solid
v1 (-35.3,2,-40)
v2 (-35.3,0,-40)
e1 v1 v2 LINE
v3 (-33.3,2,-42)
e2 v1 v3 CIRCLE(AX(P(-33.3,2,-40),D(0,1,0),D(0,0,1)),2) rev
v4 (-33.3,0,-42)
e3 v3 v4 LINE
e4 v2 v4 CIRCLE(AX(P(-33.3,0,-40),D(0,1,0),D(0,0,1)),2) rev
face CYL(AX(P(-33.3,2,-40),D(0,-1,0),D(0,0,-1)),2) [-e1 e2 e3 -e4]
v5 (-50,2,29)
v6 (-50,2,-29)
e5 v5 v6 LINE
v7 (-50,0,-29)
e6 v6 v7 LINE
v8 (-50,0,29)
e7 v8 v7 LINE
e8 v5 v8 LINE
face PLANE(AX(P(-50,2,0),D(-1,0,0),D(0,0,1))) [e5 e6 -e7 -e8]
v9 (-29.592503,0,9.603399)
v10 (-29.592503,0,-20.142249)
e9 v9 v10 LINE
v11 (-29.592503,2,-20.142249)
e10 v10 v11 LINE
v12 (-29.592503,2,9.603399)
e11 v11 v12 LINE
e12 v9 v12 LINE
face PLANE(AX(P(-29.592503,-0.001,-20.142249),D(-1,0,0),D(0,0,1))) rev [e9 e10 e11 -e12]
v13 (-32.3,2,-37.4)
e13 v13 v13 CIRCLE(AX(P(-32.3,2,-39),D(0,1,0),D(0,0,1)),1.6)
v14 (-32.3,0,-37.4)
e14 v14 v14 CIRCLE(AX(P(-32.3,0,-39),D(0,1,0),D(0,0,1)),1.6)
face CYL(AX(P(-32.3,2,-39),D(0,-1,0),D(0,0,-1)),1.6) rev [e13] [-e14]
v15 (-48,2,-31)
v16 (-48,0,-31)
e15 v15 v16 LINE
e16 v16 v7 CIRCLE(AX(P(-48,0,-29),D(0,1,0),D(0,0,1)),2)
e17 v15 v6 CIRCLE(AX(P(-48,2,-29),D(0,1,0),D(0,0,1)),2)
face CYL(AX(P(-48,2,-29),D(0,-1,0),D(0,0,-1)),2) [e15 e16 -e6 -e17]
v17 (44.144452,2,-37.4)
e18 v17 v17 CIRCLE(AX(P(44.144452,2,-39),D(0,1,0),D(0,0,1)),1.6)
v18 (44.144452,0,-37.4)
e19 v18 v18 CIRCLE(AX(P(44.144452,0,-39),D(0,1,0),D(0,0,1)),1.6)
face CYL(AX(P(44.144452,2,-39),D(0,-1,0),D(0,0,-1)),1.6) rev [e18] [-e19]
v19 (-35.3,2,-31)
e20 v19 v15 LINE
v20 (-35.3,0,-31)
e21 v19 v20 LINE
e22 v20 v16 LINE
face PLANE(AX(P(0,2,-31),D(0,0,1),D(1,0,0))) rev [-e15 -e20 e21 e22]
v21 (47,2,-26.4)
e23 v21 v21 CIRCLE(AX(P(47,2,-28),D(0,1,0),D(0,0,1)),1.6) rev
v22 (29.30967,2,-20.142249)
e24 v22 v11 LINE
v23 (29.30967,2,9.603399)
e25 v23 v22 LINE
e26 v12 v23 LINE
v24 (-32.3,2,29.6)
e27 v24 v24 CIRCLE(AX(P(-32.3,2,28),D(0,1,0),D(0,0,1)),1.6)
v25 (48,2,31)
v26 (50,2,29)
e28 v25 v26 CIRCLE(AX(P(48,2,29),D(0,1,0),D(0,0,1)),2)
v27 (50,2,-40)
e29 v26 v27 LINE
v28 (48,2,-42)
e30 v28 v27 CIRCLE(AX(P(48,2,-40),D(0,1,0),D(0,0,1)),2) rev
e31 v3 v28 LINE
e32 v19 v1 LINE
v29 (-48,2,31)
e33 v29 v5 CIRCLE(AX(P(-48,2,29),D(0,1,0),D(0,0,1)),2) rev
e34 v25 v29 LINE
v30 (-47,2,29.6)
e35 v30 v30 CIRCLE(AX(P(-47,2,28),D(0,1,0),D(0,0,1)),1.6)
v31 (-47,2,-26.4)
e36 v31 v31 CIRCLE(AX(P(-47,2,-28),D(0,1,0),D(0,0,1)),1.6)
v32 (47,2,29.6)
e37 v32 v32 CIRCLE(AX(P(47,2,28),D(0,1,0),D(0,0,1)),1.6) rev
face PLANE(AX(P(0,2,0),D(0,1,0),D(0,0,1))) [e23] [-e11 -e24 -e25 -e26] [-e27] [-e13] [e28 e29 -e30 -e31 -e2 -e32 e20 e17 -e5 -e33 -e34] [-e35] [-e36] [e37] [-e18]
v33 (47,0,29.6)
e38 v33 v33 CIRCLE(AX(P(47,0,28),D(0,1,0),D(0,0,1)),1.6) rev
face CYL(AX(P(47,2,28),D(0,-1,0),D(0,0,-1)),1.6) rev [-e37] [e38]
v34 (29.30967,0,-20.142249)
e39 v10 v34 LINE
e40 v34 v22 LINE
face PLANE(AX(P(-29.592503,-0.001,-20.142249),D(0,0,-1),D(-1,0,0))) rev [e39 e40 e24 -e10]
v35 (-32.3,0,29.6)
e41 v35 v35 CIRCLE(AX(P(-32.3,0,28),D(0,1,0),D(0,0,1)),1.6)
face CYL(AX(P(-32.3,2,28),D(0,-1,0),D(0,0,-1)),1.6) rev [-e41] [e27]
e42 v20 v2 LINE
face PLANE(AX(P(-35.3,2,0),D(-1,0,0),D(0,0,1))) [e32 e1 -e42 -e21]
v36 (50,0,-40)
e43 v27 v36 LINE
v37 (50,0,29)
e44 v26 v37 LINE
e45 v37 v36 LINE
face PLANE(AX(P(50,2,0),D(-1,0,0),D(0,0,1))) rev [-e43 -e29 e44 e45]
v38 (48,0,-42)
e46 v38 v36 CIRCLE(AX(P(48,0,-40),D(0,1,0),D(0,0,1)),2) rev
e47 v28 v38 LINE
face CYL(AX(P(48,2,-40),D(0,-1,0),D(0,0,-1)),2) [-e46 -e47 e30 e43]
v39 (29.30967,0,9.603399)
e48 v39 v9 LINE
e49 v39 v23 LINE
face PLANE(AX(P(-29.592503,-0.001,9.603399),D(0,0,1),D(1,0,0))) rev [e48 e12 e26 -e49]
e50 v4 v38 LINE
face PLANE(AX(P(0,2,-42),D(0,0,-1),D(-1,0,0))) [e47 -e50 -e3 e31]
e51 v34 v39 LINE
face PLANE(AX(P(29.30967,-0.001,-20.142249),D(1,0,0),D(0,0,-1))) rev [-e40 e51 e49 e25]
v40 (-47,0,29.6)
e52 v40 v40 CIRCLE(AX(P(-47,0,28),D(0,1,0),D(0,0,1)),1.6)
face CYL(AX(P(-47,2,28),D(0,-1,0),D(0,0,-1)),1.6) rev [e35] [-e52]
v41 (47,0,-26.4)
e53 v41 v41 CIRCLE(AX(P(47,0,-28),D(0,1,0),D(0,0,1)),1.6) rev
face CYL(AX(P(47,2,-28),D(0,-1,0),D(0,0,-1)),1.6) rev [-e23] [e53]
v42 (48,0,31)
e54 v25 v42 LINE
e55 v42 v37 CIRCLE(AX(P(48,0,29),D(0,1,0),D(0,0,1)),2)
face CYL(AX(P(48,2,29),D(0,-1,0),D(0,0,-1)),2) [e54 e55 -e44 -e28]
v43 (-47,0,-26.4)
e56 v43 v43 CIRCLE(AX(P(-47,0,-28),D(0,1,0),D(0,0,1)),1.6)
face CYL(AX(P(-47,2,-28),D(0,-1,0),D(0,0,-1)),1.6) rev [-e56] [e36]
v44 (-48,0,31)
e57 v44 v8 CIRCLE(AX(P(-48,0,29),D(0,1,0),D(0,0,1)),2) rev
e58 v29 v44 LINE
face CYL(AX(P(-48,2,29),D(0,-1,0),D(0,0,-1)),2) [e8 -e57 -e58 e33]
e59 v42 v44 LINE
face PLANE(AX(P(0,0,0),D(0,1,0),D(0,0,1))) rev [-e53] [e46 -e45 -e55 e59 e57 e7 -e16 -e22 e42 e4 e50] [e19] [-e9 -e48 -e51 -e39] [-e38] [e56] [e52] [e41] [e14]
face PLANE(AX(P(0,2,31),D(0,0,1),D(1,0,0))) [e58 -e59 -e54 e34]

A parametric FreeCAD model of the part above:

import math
import FreeCAD as App
import Part
import Sketcher

doc = App.newDocument("Part")
body = doc.addObject("PartDesign::Body", "Body")

sketch1 = body.newObject("Sketcher::SketchObject", "Sketch")
sketch1.AttachmentSupport = (doc.getObject("XZ_Plane"), [""])
sketch1.MapMode = "FlatFace"
sketch1.addGeometry([
    Part.ArcOfCircle(Part.Circle(App.Vector(48, 29, 0), App.Vector(0, 0, 1), 2), math.radians(0), math.radians(90)),
    Part.LineSegment(App.Vector(50, 29, 0), App.Vector(50, -40, 0)),
    Part.ArcOfCircle(Part.Circle(App.Vector(48, -40, 0), App.Vector(0, 0, 1), 2), math.radians(-90), math.radians(0)),
    Part.LineSegment(App.Vector(48, -42, 0), App.Vector(-33.3, -42, 0)),
    Part.ArcOfCircle(Part.Circle(App.Vector(-33.3, -40, 0), App.Vector(0, 0, 1), 2), math.radians(-180), math.radians(-90)),
    Part.LineSegment(App.Vector(-35.3, -40, 0), App.Vector(-35.3, -31, 0)),
    Part.LineSegment(App.Vector(-35.3, -31, 0), App.Vector(-48, -31, 0)),
    Part.ArcOfCircle(Part.Circle(App.Vector(-48, -29, 0), App.Vector(0, 0, 1), 2), math.radians(-180), math.radians(-90)),
    Part.LineSegment(App.Vector(-50, -29, 0), App.Vector(-50, 29, 0)),
    Part.ArcOfCircle(Part.Circle(App.Vector(-48, 29, 0), App.Vector(0, 0, 1), 2), math.radians(90), math.radians(180)),
    Part.LineSegment(App.Vector(-48, 31, 0), App.Vector(48, 31, 0)),
    Part.Circle(App.Vector(-32.3, 28, 0), App.Vector(0, 0, 1), 1.6),
    Part.Circle(App.Vector(47, 28, 0), App.Vector(0, 0, 1), 1.6),
    Part.Circle(App.Vector(47, -28, 0), App.Vector(0, 0, 1), 1.6),
    Part.Circle(App.Vector(-47, -28, 0), App.Vector(0, 0, 1), 1.6),
    Part.Circle(App.Vector(-47, 28, 0), App.Vector(0, 0, 1), 1.6),
    Part.Circle(App.Vector(44.1, -39, 0), App.Vector(0, 0, 1), 1.6),
    Part.Circle(App.Vector(-32.3, -39, 0), App.Vector(0, 0, 1), 1.6),
], False)
sketch1.addConstraint([
    Sketcher.Constraint("Tangent", 0, 1, 1, 1),
    Sketcher.Constraint("Tangent", 1, 2, 2, 2),
    Sketcher.Constraint("Tangent", 2, 1, 3, 1),
    Sketcher.Constraint("Tangent", 3, 2, 4, 2),
    Sketcher.Constraint("Tangent", 4, 1, 5, 1),
    Sketcher.Constraint("Coincident", 5, 2, 6, 1),
    Sketcher.Constraint("Tangent", 6, 2, 7, 2),
    Sketcher.Constraint("Tangent", 7, 1, 8, 1),
    Sketcher.Constraint("Tangent", 8, 2, 9, 2),
    Sketcher.Constraint("Tangent", 9, 1, 10, 1),
    Sketcher.Constraint("Tangent", 10, 2, 0, 2),
    Sketcher.Constraint("Vertical", 1),
    Sketcher.Constraint("Horizontal", 3),
    Sketcher.Constraint("Vertical", 5),
    Sketcher.Constraint("Horizontal", 6),
    Sketcher.Constraint("Vertical", 8),
    Sketcher.Constraint("Horizontal", 10),
    Sketcher.Constraint("Equal", 0, 2),
    Sketcher.Constraint("Equal", 2, 4),
    Sketcher.Constraint("Equal", 4, 7),
    Sketcher.Constraint("Equal", 7, 9),
    Sketcher.Constraint("Equal", 11, 12),
    Sketcher.Constraint("Equal", 12, 13),
    Sketcher.Constraint("Equal", 13, 14),
    Sketcher.Constraint("Equal", 14, 15),
    Sketcher.Constraint("Equal", 15, 16),
    Sketcher.Constraint("Equal", 16, 17),
    Sketcher.Constraint("Symmetric", 0, 3, 7, 3, -1, 1),
    Sketcher.Constraint("Symmetric", 12, 3, 14, 3, -1, 1),
    Sketcher.Constraint("Symmetric", 13, 3, 15, 3, -1, 1),
    Sketcher.Constraint("Symmetric", 13, 3, 14, 3, -2),
    Sketcher.Constraint("Horizontal", 11, 3, 12, 3),
    Sketcher.Constraint("Horizontal", 16, 3, 17, 3),
    Sketcher.Constraint("Vertical", 11, 3, 17, 3),
    Sketcher.Constraint("Radius", 0, 2.0),
    Sketcher.Constraint("Diameter", 11, 3.2),
    Sketcher.Constraint("DistanceX", 10, 1, 10, 2, 96.0),
    Sketcher.Constraint("DistanceY", 1, 2, 1, 1, 69.0),
    Sketcher.Constraint("DistanceY", 5, 1, 5, 2, 9.0),
    Sketcher.Constraint("DistanceX", 3, 2, 3, 1, 81.3),
    Sketcher.Constraint("DistanceY", -1, 1, 11, 3, 28.0),
    Sketcher.Constraint("DistanceX", -1, 1, 12, 3, 47.0),
    Sketcher.Constraint("DistanceY", 16, 3, -1, 1, 39.0),
    Sketcher.Constraint("DistanceX", 4, 3, 11, 3, 1.0),
    Sketcher.Constraint("DistanceX", -1, 1, 16, 3, 44.144452),
])
pad1 = body.newObject("PartDesign::Pad", "Pad")
pad1.Profile = sketch1
pad1.Length = 2
pad1.Reversed = True

sketch2 = body.newObject("Sketcher::SketchObject", "Sketch001")
sketch2.AttachmentSupport = (doc.getObject("XZ_Plane"), [""])
sketch2.MapMode = "FlatFace"
sketch2.AttachmentOffset = App.Placement(App.Vector(0, 0, -2), App.Rotation())
sketch2.addGeometry([
    Part.LineSegment(App.Vector(-30, -20, 0), App.Vector(-30, 10, 0)),
    Part.LineSegment(App.Vector(-30, 10, 0), App.Vector(29, 10, 0)),
    Part.LineSegment(App.Vector(29, 10, 0), App.Vector(29, -20, 0)),
    Part.LineSegment(App.Vector(29, -20, 0), App.Vector(-30, -20, 0)),
], False)
sketch2.addConstraint([
    Sketcher.Constraint("Coincident", 0, 2, 1, 1),
    Sketcher.Constraint("Coincident", 1, 2, 2, 1),
    Sketcher.Constraint("Coincident", 2, 2, 3, 1),
    Sketcher.Constraint("Coincident", 3, 2, 0, 1),
    Sketcher.Constraint("Vertical", 0),
    Sketcher.Constraint("Horizontal", 1),
    Sketcher.Constraint("Vertical", 2),
    Sketcher.Constraint("Horizontal", 3),
    Sketcher.Constraint("DistanceY", -1, 1, 0, 2, 9.603399),
    Sketcher.Constraint("DistanceX", 1, 1, 1, 2, 58.902173),
    Sketcher.Constraint("DistanceY", 0, 1, 0, 2, 29.745647),
    Sketcher.Constraint("DistanceX", -1, 1, 1, 2, 29.30967),
])
pocket1 = body.newObject("PartDesign::Pocket", "Pocket")
pocket1.Profile = sketch2
pocket1.Type = "UpToFirst"
pocket1.Reversed = True

doc.recompute()
